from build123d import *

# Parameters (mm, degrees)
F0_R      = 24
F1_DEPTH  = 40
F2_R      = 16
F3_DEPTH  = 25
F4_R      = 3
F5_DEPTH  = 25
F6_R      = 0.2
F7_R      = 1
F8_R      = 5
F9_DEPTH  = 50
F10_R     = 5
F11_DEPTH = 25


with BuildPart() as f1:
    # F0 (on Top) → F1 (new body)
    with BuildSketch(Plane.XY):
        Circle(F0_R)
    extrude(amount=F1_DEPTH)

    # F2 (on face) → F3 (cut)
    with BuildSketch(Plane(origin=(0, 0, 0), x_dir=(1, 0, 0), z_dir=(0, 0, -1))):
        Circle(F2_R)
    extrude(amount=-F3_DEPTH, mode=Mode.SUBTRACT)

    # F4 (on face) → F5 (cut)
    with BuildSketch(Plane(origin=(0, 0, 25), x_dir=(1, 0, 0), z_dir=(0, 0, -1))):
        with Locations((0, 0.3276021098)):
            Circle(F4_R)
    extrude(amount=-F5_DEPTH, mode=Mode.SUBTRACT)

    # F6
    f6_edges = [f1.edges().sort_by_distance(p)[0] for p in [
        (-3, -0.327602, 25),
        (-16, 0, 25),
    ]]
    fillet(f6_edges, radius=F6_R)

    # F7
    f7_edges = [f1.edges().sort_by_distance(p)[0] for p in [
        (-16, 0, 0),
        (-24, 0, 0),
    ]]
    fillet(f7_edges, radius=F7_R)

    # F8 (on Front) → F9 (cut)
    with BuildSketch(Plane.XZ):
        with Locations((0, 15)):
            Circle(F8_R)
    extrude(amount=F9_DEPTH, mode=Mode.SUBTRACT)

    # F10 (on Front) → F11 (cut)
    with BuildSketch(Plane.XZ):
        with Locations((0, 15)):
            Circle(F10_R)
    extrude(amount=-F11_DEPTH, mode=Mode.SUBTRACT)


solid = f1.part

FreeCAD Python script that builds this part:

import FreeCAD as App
import Part
import Sketcher
Q = App.Units.Quantity


def edges_at(feature, points):
    """Names of the edges that pass closest to the given points."""
    edges = feature.Shape.Edges
    near = lambda p: min(range(len(edges)), key=lambda i: edges[i].distToShape(Part.Vertex(*p))[0])
    return sorted({f"Edge{near(p) + 1}" for p in points})

doc = App.newDocument("Part")
body = doc.addObject("PartDesign::Body", "Body")

# Sketch on XY plane
sketch1 = body.newObject("Sketcher::SketchObject", "Sketch")
sketch1.AttachmentSupport = (doc.getObject("XY_Plane"), [""])
sketch1.MapMode = "FlatFace"
sketch1.addGeometry(Part.Circle(App.Vector(0, 0, 0), App.Vector(0, 0, 1), 24), False)
sketch1.addConstraint([
    Sketcher.Constraint("Coincident", 0, 3, -1, 1),
    Sketcher.Constraint("Diameter", 0, Q("48 mm")),
])
pad1 = body.newObject("PartDesign::Pad", "Pad")
pad1.Profile = sketch1
pad1.Length = 40

# Sketch on XY plane
sketch2 = body.newObject("Sketcher::SketchObject", "Sketch001")
sketch2.AttachmentSupport = (doc.getObject("XY_Plane"), [""])
sketch2.MapMode = "FlatFace"
sketch2.addGeometry(Part.Circle(App.Vector(0, 0, 0), App.Vector(0, 0, 1), 16), False)
sketch2.addConstraint([
    Sketcher.Constraint("Coincident", 0, 3, -1, 1),
    Sketcher.Constraint("Diameter", 0, Q("32 mm")),
])
pocket1 = body.newObject("PartDesign::Pocket", "Pocket")
pocket1.Profile = sketch2
pocket1.Length = 25
pocket1.Reversed = True

# Sketch on XY plane
sketch3 = body.newObject("Sketcher::SketchObject", "Sketch002")
sketch3.AttachmentSupport = (doc.getObject("XY_Plane"), [""])
sketch3.MapMode = "FlatFace"
sketch3.AttachmentOffset = App.Placement(App.Vector(0, 0, 25), App.Rotation())
sketch3.addGeometry(Part.Circle(App.Vector(0, -0.327602, 0), App.Vector(0, 0, 1), 3), False)
sketch3.addConstraint([
    Sketcher.Constraint("PointOnObject", 0, 3, -2),
    Sketcher.Constraint("Diameter", 0, Q("6 mm")),
    Sketcher.Constraint("DistanceY", 0, 3, -1, 1, Q("0.327602 mm")),
])
pocket2 = body.newObject("PartDesign::Pocket", "Pocket001")
pocket2.Profile = sketch3
pocket2.Length = 25
pocket2.Reversed = True
doc.recompute()

fillet = body.newObject("PartDesign::Fillet", "Fillet")
fillet.Base = (pocket2, edges_at(pocket2, [(-3, -0.328, 25), (-16, 0, 25)]))
fillet.Radius = 0.2
doc.recompute()

fillet2 = body.newObject("PartDesign::Fillet", "Fillet001")
fillet2.Base = (fillet, edges_at(fillet, [(-16, 0, 0), (-24, 0, 0)]))
fillet2.Radius = 1

# Sketch on XZ plane
sketch4 = body.newObject("Sketcher::SketchObject", "Sketch003")
sketch4.AttachmentSupport = (doc.getObject("XZ_Plane"), [""])
sketch4.MapMode = "FlatFace"
sketch4.addGeometry(Part.Circle(App.Vector(0, 15, 0), App.Vector(0, 0, 1), 5), False)
sketch4.addConstraint([
    Sketcher.Constraint("PointOnObject", 0, 3, -2),
    Sketcher.Constraint("Diameter", 0, Q("10 mm")),
    Sketcher.Constraint("DistanceY", -1, 1, 0, 3, Q("15 mm")),
])
pocket3 = body.newObject("PartDesign::Pocket", "Pocket002")
pocket3.Profile = sketch4
pocket3.Length = 50
pocket3.Reversed = True

# Sketch on XZ plane
sketch5 = body.newObject("Sketcher::SketchObject", "Sketch004")
sketch5.AttachmentSupport = (doc.getObject("XZ_Plane"), [""])
sketch5.MapMode = "FlatFace"
sketch5.addGeometry(Part.Circle(App.Vector(0, 15, 0), App.Vector(0, 0, 1), 5), False)
sketch5.addConstraint([
    Sketcher.Constraint("PointOnObject", 0, 3, -2),
    Sketcher.Constraint("Diameter", 0, Q("10 mm")),
    Sketcher.Constraint("DistanceY", -1, 1, 0, 3, Q("15 mm")),
])
pocket4 = body.newObject("PartDesign::Pocket", "Pocket003")
pocket4.Profile = sketch5
pocket4.Length = 25

doc.recompute()
